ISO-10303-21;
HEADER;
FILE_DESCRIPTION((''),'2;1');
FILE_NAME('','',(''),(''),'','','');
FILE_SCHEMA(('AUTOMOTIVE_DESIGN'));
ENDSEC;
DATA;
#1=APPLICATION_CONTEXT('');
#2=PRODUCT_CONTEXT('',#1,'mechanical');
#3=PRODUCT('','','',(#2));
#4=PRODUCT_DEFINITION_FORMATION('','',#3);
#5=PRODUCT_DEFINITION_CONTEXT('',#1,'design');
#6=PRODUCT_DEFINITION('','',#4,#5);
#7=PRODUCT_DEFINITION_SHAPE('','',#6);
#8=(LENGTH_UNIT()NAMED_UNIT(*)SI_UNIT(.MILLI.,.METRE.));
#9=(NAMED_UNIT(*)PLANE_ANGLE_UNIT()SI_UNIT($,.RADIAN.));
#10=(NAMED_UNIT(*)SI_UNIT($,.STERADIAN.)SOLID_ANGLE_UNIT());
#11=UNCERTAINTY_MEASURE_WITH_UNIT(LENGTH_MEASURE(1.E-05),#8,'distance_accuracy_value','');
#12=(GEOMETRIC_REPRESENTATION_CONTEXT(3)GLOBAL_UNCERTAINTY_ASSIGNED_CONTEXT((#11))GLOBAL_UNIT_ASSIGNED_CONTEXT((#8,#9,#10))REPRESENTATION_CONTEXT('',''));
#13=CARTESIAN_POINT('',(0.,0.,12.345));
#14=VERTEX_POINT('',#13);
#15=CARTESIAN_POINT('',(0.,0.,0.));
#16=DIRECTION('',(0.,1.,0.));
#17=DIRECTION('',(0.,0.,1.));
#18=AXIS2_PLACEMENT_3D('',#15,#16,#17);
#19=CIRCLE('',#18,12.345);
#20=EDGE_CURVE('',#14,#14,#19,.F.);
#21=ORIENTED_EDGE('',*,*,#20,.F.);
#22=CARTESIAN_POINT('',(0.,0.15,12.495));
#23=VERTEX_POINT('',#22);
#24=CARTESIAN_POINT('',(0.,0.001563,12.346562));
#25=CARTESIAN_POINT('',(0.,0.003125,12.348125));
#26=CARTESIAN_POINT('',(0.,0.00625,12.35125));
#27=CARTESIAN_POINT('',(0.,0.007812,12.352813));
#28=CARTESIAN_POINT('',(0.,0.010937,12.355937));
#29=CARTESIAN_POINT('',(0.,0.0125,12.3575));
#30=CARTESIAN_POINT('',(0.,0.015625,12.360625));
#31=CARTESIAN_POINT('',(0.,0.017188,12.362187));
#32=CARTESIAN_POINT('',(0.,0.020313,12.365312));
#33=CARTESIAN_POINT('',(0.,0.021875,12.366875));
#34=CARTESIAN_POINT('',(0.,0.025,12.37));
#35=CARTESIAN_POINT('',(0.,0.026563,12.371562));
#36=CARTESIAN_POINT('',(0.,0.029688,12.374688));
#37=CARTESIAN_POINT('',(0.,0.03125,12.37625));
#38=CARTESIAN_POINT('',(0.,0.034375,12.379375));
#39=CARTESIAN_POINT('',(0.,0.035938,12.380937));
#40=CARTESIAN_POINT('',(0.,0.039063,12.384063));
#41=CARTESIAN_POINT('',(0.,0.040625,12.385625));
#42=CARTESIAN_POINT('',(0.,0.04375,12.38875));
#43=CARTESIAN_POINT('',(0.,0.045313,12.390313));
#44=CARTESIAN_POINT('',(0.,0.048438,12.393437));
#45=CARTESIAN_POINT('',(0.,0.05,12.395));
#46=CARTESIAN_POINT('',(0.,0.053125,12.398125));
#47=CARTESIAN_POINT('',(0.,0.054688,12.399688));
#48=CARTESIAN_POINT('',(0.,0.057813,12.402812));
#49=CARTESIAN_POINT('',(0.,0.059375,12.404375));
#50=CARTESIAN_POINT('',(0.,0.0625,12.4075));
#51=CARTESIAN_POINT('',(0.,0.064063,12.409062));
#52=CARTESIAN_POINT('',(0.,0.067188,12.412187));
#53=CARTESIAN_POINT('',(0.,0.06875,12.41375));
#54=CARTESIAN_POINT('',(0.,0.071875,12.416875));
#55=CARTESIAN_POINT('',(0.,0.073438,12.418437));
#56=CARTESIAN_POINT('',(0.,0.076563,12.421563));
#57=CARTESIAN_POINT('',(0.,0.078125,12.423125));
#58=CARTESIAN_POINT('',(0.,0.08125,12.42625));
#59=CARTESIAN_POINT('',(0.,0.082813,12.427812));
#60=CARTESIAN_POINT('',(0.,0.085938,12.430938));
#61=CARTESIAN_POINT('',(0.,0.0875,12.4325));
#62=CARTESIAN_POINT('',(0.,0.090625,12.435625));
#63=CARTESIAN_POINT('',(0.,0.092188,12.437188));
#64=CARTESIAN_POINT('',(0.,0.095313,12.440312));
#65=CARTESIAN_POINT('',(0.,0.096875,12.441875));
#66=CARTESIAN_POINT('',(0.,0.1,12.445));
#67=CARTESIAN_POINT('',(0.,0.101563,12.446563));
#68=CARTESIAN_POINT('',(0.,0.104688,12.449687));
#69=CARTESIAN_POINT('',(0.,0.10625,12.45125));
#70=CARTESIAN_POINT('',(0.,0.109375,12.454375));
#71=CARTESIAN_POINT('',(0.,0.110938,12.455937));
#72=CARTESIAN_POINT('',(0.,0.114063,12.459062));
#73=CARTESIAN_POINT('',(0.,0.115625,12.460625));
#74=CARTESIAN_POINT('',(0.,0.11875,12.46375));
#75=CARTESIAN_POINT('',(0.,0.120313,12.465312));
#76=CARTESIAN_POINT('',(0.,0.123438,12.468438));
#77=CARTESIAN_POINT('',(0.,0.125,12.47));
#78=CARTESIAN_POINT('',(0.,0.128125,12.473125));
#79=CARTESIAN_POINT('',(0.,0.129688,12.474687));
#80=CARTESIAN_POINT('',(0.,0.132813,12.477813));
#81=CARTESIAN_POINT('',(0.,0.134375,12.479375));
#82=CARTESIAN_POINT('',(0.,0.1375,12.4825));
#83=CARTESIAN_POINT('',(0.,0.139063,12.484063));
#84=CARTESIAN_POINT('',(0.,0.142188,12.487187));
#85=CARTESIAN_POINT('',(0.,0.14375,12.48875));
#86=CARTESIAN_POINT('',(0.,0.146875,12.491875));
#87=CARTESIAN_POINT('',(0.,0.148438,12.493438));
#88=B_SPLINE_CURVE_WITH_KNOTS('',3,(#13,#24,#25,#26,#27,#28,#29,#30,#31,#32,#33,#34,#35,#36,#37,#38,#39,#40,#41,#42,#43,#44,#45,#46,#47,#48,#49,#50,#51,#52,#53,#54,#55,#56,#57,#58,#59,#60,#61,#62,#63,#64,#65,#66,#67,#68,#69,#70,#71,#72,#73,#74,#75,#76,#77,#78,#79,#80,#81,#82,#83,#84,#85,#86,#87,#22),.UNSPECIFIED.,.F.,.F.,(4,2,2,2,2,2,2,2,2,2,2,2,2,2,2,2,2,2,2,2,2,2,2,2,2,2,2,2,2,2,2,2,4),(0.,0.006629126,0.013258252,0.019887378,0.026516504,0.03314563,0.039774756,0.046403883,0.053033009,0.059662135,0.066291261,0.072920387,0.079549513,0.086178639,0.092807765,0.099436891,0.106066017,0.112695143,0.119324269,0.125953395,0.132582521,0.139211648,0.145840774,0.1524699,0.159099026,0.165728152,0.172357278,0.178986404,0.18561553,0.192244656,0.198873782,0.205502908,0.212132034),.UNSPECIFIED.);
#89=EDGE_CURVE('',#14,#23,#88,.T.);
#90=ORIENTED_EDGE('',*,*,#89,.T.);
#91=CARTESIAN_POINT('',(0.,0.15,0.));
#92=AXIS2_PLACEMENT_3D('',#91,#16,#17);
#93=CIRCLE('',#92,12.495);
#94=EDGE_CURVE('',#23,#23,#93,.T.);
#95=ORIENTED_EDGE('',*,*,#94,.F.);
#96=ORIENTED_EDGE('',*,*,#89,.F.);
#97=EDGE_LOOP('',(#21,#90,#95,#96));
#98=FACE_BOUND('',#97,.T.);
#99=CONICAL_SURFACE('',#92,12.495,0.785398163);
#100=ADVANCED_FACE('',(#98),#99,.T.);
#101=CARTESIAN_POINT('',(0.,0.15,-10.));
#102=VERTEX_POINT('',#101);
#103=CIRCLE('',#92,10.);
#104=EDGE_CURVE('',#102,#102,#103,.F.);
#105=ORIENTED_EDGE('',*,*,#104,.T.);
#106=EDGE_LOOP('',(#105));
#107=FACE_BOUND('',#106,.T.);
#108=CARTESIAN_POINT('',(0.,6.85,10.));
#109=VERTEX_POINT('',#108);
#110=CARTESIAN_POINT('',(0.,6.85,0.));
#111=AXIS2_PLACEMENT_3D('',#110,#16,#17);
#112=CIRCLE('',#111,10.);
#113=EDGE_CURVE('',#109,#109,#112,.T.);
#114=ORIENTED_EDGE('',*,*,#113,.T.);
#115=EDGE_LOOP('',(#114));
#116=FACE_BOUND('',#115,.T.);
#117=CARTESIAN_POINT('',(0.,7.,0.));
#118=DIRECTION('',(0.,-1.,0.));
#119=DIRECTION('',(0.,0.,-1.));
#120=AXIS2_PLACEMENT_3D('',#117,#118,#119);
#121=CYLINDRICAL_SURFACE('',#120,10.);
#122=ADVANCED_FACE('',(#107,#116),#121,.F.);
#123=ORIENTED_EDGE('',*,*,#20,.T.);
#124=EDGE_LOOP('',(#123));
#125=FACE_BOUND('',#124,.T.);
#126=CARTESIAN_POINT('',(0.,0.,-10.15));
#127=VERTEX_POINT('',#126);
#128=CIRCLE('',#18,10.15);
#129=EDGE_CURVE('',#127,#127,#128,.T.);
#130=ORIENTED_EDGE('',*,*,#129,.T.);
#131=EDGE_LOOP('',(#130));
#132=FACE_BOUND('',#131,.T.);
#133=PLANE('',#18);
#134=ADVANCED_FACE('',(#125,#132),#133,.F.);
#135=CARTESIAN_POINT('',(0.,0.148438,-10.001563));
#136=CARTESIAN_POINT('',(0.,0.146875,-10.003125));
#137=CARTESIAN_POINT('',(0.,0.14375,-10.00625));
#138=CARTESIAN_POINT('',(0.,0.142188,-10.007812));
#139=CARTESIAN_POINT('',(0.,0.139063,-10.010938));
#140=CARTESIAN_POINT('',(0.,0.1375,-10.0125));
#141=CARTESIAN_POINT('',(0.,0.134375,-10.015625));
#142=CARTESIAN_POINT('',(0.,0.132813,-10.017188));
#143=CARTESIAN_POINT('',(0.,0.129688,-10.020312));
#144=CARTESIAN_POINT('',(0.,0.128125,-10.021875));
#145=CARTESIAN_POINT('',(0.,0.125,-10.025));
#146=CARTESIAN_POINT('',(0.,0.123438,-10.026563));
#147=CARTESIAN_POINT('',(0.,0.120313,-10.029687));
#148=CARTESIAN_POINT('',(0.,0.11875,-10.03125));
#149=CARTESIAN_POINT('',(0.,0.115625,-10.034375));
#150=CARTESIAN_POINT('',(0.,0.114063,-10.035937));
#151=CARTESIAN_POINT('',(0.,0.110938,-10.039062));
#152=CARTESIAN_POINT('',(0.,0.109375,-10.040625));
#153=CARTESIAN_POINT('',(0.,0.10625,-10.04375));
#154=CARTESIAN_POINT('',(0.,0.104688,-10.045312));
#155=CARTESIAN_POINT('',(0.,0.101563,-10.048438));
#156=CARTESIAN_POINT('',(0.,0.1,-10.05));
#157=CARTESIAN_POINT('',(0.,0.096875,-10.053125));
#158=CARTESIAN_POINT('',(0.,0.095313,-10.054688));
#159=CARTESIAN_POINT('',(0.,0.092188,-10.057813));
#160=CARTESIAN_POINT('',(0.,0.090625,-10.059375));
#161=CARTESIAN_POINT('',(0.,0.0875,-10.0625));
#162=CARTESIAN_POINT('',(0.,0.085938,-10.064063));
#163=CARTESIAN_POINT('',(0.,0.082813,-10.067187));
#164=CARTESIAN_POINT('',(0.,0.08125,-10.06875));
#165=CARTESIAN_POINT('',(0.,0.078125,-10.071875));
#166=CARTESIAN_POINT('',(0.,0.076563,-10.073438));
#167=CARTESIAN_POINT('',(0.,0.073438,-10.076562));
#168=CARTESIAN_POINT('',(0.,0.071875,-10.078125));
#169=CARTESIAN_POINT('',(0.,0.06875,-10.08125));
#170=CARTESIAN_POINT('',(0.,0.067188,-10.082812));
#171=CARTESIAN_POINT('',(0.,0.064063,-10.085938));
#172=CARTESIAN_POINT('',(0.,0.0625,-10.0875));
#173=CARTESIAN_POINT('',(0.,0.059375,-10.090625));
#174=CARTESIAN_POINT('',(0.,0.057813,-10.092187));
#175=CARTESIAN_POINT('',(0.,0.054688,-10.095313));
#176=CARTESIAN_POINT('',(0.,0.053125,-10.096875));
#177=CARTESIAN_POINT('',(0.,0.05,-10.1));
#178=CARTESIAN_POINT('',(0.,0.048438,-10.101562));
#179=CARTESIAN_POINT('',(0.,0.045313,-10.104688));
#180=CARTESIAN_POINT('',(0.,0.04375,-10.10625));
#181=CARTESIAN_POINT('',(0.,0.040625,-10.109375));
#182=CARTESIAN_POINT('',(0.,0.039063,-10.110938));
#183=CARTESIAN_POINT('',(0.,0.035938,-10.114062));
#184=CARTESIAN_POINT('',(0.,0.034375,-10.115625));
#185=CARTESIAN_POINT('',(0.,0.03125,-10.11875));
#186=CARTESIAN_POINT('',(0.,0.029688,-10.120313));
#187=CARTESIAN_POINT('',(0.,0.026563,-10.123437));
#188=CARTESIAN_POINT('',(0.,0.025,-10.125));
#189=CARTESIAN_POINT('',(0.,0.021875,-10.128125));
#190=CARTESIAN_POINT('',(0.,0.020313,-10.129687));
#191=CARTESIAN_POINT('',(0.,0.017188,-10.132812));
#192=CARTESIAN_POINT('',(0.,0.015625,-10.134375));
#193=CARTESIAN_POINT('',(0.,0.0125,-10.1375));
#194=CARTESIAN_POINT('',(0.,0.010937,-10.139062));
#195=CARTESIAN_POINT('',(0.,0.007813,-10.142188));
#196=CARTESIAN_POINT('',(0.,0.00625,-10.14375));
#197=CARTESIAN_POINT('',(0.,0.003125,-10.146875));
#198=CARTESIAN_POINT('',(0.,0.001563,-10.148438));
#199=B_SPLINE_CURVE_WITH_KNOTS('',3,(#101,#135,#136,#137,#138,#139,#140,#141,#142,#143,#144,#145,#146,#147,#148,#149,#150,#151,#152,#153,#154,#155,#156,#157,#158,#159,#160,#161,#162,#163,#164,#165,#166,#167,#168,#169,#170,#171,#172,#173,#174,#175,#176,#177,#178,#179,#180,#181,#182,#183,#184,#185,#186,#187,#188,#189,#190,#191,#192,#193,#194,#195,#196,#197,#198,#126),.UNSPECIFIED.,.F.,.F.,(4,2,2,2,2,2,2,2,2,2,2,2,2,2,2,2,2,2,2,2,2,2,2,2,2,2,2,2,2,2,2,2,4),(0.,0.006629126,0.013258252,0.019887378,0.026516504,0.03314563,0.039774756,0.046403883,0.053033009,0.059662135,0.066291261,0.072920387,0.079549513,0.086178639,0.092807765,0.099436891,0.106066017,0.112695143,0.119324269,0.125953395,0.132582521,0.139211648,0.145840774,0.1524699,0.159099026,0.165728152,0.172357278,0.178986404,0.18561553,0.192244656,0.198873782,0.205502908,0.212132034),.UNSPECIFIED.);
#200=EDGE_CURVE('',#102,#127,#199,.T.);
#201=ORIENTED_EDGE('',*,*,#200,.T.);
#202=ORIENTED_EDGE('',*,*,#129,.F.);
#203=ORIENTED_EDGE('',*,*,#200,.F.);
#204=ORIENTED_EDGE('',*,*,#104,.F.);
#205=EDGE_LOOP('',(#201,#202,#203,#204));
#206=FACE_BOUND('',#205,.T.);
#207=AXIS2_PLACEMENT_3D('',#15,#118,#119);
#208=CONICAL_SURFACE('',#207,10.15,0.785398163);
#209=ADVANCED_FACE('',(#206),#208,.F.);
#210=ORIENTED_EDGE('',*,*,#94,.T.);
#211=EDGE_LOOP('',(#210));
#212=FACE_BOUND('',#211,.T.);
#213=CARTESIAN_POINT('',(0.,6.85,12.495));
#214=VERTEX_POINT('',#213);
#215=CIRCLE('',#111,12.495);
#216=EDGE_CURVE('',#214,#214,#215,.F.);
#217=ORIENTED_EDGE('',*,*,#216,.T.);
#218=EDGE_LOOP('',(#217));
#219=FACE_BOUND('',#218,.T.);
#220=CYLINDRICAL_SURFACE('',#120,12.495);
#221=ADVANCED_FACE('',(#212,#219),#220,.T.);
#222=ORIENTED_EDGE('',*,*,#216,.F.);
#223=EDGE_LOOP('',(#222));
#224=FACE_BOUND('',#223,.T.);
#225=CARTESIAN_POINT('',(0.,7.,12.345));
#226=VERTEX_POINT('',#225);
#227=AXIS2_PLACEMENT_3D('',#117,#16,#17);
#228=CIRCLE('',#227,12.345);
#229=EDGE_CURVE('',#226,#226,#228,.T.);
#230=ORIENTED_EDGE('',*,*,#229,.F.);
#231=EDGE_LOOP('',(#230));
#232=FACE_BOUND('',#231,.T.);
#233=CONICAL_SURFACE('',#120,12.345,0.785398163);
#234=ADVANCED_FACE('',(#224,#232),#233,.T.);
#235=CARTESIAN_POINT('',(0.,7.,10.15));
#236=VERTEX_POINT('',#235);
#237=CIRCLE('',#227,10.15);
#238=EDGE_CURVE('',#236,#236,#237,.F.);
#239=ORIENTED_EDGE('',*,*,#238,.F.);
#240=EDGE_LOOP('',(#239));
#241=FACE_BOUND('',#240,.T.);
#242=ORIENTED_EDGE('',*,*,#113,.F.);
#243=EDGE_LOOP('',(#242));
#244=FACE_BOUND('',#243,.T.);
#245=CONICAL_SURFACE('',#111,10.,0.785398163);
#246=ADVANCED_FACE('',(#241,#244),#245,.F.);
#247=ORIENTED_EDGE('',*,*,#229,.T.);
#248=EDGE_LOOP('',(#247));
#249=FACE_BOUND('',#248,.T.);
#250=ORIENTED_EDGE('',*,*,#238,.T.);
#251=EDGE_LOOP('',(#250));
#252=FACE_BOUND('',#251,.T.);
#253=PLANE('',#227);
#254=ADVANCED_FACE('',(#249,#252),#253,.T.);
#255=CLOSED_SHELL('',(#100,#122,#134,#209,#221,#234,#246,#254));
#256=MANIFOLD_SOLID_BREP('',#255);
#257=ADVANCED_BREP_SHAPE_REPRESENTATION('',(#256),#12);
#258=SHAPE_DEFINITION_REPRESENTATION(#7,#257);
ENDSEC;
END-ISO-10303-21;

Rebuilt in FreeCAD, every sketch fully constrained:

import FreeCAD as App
import Part
import Sketcher
from FreeCAD import Vector
Q = App.Units.Quantity


def edges_at(feature, points):
    """Names of the edges that pass closest to the given points."""
    edges = feature.Shape.Edges
    near = lambda p: min(range(len(edges)), key=lambda i: edges[i].distToShape(Part.Vertex(*p))[0])
    return sorted({f"Edge{near(p) + 1}" for p in points})

doc = App.newDocument("Part")
body = doc.addObject("PartDesign::Body", "Body")

# Sketch on XZ plane
sketch1 = body.newObject("Sketcher::SketchObject", "Sketch")
sketch1.AttachmentSupport = (doc.getObject("XZ_Plane"), [""])
sketch1.MapMode = "FlatFace"
sketch1.addGeometry(Part.Circle(Vector(0, 0, 0), Vector(0, 0, 1), 12), False)
sketch1.addGeometry(Part.Circle(Vector(0, 0, 0), Vector(0, 0, 1), 10), False)
sketch1.addConstraint(Sketcher.Constraint("Coincident", 0, 3, -1, 1))
sketch1.addConstraint(Sketcher.Constraint("Coincident", 1, 3, -1, 1))
sketch1.addConstraint(Sketcher.Constraint("Diameter", 1, Q("20 mm")))
sketch1.addConstraint(Sketcher.Constraint("Diameter", 0, Q("24.99 mm")))
pad1 = body.newObject("PartDesign::Pad", "Pad")
pad1.Profile = sketch1
pad1.Length = 7
pad1.Reversed = True
doc.recompute()

chamfer = body.newObject("PartDesign::Chamfer", "Chamfer")
chamfer.Base = (pad1, edges_at(pad1, [
    (0, 0, -12.495),
    (0, 7, -12.495),
    (0, 0, -10),
    (0, 7, -10),
]))
chamfer.Size = 0.15

doc.recompute()
